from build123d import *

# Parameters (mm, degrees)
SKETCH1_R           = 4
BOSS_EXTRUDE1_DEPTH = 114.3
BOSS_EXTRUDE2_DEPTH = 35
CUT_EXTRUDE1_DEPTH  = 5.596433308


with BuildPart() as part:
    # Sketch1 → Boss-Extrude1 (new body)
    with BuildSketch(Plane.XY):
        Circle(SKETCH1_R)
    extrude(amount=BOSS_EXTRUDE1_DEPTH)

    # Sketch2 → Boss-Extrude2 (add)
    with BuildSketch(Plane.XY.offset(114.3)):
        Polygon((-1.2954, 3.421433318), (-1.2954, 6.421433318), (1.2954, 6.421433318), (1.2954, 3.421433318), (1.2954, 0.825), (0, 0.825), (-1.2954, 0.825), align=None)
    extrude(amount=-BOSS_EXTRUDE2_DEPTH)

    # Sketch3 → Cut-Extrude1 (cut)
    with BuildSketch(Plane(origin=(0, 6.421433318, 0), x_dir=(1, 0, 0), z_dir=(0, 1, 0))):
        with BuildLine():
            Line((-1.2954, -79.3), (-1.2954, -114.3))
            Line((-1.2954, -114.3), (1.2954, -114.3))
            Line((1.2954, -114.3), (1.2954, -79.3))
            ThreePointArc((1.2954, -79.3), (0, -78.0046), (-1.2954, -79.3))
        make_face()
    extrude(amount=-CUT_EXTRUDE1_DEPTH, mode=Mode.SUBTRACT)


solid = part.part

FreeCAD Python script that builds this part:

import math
import FreeCAD as App
import Part
import Sketcher


def add_polygon(sketch, points):
    """Adds a closed chain of lines whose ends are joined by coincident constraints."""
    first, n = sketch.GeometryCount, len(points)
    for a, b in zip(points, points[1:] + points[:1]):
        sketch.addGeometry(Part.LineSegment(App.Vector(*a, 0), App.Vector(*b, 0)), False)
    for i in range(n):
        sketch.addConstraint(Sketcher.Constraint("Coincident", first + i, 2, first + (i + 1) % n, 1))

doc = App.newDocument("Part")
params = doc.addObject("Spreadsheet::Sheet", "Params")
for row, (alias, value) in enumerate([
    ("sketch1_diameter", "8 mm"),
    ("pad1_length", "114.3 mm"),
    ("pad2_length", "35 mm"),
    ("sketch3_height", "35 mm"),
    ("pocket1_length", "5.596433 mm"),
], start=1):
    params.set(f"A{row}", alias)
    params.set(f"B{row}", "=" + value)
    params.setAlias(f"B{row}", alias)

body = doc.addObject("PartDesign::Body", "Body")

sketch1 = body.newObject("Sketcher::SketchObject", "Sketch")
sketch1.AttachmentSupport = (doc.getObject("XY_Plane"), [""])
sketch1.MapMode = "FlatFace"
sketch1.addGeometry(Part.Circle(App.Vector(0, 0, 0), App.Vector(0, 0, 1), 4), False)
sketch1.addConstraint([
    Sketcher.Constraint("Coincident", 0, 3, -1, 1),
    Sketcher.Constraint("Diameter", 0, 8.0),
])
sketch1.setExpression("Constraints[1]", "Params.sketch1_diameter")
pad1 = body.newObject("PartDesign::Pad", "Pad")
pad1.Profile = sketch1
pad1.setExpression("Length", "Params.pad1_length")

sketch2 = body.newObject("Sketcher::SketchObject", "Sketch001")
sketch2.AttachmentSupport = (doc.getObject("XY_Plane"), [""])
sketch2.MapMode = "FlatFace"
sketch2.AttachmentOffset = App.Placement(App.Vector(0, 0, 114.3), App.Rotation())
add_polygon(sketch2, [(-1.3, 6.4), (-1.3, 0.8), (1.3, 0.8), (1.3, 6.4)])
sketch2.addConstraint([
    Sketcher.Constraint("Vertical", 0),
    Sketcher.Constraint("Horizontal", 1),
    Sketcher.Constraint("Vertical", 2),
    Sketcher.Constraint("Horizontal", 3),
    Sketcher.Constraint("DistanceX", 1, 1, 1, 2, 2.5908),
    Sketcher.Constraint("DistanceY", -1, 1, 0, 2, 0.825),
    Sketcher.Constraint("DistanceX", 0, 2, -1, 1, 1.2954),
    Sketcher.Constraint("DistanceY", 0, 2, 0, 1, 5.596433),
])
pad2 = body.newObject("PartDesign::Pad", "Pad001")
pad2.Profile = sketch2
pad2.setExpression("Length", "Params.pad2_length")
pad2.Reversed = True

sketch3 = body.newObject("Sketcher::SketchObject", "Sketch002")
sketch3.AttachmentSupport = (doc.getObject("XZ_Plane"), [""])
sketch3.MapMode = "FlatFace"
sketch3.AttachmentOffset = App.Placement(App.Vector(0, 0, -6.421433), App.Rotation())
sketch3.addGeometry([
    Part.LineSegment(App.Vector(-1.3, 79.3, 0), App.Vector(-1.3, 114.3, 0)),
    Part.LineSegment(App.Vector(-1.3, 114.3, 0), App.Vector(1.3, 114.3, 0)),
    Part.LineSegment(App.Vector(1.3, 114.3, 0), App.Vector(1.3, 79.3, 0)),
    Part.ArcOfCircle(Part.Circle(App.Vector(0, 79.3, 0), App.Vector(0, 0, 1), 1.3), math.radians(180), math.radians(360)),
], False)
sketch3.addConstraint([
    Sketcher.Constraint("Coincident", 0, 2, 1, 1),
    Sketcher.Constraint("Coincident", 1, 2, 2, 1),
    Sketcher.Constraint("Tangent", 2, 2, 3, 2),
    Sketcher.Constraint("Tangent", 3, 1, 0, 1),
    Sketcher.Constraint("Vertical", 0),
    Sketcher.Constraint("Horizontal", 1),
    Sketcher.Constraint("Vertical", 2),
    Sketcher.Constraint("PointOnObject", 3, 3, -2),
    Sketcher.Constraint("DistanceY", 0, 1, 0, 2, 35.0),
    Sketcher.Constraint("DistanceY", -1, 1, 3, 3, 79.3),
    Sketcher.Constraint("Radius", 3, 1.2954),
])
sketch3.setExpression("Constraints[8]", "Params.sketch3_height")
pocket1 = body.newObject("PartDesign::Pocket", "Pocket")
pocket1.Profile = sketch3
pocket1.setExpression("Length", "Params.pocket1_length")
pocket1.Reversed = True

doc.recompute()
